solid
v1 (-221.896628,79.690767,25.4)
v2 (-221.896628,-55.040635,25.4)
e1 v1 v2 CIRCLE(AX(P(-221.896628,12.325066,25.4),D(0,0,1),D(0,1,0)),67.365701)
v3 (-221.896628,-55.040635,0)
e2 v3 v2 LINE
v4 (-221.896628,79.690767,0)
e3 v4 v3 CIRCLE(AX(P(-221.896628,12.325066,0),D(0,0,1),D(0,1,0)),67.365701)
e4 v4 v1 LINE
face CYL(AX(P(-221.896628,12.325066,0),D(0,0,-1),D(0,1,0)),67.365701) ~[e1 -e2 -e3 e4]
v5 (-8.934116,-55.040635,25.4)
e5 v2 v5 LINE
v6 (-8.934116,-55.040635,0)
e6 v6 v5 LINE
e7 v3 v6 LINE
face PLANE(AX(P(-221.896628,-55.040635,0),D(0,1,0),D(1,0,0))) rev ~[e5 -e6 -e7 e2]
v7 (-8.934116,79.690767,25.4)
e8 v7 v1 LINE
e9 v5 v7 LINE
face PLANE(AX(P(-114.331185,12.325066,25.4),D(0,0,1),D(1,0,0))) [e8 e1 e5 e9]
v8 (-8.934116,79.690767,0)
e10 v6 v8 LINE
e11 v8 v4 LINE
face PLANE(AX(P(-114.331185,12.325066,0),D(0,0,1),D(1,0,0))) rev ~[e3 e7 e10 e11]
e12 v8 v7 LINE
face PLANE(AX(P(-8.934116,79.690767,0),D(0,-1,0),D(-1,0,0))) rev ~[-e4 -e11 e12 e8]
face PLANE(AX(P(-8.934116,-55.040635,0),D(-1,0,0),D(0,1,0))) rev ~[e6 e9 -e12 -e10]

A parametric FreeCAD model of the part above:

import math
import FreeCAD as App
import Part
import Sketcher
Q = App.Units.Quantity

doc = App.newDocument("Part")
body = doc.addObject("PartDesign::Body", "Body")

# Sketch on XY plane
sketch1 = doc.addObject("Sketcher::SketchObject", "Sketch")
body.addObject(sketch1)
sketch1.AttachmentSupport = (doc.XY_Plane, [""])
sketch1.MapMode = "FlatFace"
sketch1.addGeometry([
    Part.LineSegment(App.Vector(-222, -55, 0), App.Vector(-9, -55, 0)),
    Part.LineSegment(App.Vector(-9, -55, 0), App.Vector(-9, 80, 0)),
    Part.LineSegment(App.Vector(-9, 80, 0), App.Vector(-222, 80, 0)),
    Part.ArcOfCircle(Part.Circle(App.Vector(-222, 12, 0), App.Vector(0, 0, 1), 67), math.radians(90), math.radians(270)),
], False)
sketch1.addConstraint([
    Sketcher.Constraint("Coincident", 0, 2, 1, 1),
    Sketcher.Constraint("Coincident", 1, 2, 2, 1),
    Sketcher.Constraint("Tangent", 2, 2, 3, 1),
    Sketcher.Constraint("Tangent", 3, 2, 0, 1),
    Sketcher.Constraint("Horizontal", 0),
    Sketcher.Constraint("Vertical", 1),
    Sketcher.Constraint("Horizontal", 2),
    Sketcher.Constraint("Radius", 3, 67.365701),
    Sketcher.Constraint("DistanceX", 0, 1, 0, 2, 212.962512),
    Sketcher.Constraint("DistanceX", 3, 3, -1, 1, 221.896628),
    Sketcher.Constraint("DistanceY", -1, 1, 3, 3, 12.325066),
])
pad1 = doc.addObject("PartDesign::Pad", "Pad")
body.addObject(pad1)
pad1.Profile = sketch1
pad1.Length = Q("1 in")

doc.recompute()
